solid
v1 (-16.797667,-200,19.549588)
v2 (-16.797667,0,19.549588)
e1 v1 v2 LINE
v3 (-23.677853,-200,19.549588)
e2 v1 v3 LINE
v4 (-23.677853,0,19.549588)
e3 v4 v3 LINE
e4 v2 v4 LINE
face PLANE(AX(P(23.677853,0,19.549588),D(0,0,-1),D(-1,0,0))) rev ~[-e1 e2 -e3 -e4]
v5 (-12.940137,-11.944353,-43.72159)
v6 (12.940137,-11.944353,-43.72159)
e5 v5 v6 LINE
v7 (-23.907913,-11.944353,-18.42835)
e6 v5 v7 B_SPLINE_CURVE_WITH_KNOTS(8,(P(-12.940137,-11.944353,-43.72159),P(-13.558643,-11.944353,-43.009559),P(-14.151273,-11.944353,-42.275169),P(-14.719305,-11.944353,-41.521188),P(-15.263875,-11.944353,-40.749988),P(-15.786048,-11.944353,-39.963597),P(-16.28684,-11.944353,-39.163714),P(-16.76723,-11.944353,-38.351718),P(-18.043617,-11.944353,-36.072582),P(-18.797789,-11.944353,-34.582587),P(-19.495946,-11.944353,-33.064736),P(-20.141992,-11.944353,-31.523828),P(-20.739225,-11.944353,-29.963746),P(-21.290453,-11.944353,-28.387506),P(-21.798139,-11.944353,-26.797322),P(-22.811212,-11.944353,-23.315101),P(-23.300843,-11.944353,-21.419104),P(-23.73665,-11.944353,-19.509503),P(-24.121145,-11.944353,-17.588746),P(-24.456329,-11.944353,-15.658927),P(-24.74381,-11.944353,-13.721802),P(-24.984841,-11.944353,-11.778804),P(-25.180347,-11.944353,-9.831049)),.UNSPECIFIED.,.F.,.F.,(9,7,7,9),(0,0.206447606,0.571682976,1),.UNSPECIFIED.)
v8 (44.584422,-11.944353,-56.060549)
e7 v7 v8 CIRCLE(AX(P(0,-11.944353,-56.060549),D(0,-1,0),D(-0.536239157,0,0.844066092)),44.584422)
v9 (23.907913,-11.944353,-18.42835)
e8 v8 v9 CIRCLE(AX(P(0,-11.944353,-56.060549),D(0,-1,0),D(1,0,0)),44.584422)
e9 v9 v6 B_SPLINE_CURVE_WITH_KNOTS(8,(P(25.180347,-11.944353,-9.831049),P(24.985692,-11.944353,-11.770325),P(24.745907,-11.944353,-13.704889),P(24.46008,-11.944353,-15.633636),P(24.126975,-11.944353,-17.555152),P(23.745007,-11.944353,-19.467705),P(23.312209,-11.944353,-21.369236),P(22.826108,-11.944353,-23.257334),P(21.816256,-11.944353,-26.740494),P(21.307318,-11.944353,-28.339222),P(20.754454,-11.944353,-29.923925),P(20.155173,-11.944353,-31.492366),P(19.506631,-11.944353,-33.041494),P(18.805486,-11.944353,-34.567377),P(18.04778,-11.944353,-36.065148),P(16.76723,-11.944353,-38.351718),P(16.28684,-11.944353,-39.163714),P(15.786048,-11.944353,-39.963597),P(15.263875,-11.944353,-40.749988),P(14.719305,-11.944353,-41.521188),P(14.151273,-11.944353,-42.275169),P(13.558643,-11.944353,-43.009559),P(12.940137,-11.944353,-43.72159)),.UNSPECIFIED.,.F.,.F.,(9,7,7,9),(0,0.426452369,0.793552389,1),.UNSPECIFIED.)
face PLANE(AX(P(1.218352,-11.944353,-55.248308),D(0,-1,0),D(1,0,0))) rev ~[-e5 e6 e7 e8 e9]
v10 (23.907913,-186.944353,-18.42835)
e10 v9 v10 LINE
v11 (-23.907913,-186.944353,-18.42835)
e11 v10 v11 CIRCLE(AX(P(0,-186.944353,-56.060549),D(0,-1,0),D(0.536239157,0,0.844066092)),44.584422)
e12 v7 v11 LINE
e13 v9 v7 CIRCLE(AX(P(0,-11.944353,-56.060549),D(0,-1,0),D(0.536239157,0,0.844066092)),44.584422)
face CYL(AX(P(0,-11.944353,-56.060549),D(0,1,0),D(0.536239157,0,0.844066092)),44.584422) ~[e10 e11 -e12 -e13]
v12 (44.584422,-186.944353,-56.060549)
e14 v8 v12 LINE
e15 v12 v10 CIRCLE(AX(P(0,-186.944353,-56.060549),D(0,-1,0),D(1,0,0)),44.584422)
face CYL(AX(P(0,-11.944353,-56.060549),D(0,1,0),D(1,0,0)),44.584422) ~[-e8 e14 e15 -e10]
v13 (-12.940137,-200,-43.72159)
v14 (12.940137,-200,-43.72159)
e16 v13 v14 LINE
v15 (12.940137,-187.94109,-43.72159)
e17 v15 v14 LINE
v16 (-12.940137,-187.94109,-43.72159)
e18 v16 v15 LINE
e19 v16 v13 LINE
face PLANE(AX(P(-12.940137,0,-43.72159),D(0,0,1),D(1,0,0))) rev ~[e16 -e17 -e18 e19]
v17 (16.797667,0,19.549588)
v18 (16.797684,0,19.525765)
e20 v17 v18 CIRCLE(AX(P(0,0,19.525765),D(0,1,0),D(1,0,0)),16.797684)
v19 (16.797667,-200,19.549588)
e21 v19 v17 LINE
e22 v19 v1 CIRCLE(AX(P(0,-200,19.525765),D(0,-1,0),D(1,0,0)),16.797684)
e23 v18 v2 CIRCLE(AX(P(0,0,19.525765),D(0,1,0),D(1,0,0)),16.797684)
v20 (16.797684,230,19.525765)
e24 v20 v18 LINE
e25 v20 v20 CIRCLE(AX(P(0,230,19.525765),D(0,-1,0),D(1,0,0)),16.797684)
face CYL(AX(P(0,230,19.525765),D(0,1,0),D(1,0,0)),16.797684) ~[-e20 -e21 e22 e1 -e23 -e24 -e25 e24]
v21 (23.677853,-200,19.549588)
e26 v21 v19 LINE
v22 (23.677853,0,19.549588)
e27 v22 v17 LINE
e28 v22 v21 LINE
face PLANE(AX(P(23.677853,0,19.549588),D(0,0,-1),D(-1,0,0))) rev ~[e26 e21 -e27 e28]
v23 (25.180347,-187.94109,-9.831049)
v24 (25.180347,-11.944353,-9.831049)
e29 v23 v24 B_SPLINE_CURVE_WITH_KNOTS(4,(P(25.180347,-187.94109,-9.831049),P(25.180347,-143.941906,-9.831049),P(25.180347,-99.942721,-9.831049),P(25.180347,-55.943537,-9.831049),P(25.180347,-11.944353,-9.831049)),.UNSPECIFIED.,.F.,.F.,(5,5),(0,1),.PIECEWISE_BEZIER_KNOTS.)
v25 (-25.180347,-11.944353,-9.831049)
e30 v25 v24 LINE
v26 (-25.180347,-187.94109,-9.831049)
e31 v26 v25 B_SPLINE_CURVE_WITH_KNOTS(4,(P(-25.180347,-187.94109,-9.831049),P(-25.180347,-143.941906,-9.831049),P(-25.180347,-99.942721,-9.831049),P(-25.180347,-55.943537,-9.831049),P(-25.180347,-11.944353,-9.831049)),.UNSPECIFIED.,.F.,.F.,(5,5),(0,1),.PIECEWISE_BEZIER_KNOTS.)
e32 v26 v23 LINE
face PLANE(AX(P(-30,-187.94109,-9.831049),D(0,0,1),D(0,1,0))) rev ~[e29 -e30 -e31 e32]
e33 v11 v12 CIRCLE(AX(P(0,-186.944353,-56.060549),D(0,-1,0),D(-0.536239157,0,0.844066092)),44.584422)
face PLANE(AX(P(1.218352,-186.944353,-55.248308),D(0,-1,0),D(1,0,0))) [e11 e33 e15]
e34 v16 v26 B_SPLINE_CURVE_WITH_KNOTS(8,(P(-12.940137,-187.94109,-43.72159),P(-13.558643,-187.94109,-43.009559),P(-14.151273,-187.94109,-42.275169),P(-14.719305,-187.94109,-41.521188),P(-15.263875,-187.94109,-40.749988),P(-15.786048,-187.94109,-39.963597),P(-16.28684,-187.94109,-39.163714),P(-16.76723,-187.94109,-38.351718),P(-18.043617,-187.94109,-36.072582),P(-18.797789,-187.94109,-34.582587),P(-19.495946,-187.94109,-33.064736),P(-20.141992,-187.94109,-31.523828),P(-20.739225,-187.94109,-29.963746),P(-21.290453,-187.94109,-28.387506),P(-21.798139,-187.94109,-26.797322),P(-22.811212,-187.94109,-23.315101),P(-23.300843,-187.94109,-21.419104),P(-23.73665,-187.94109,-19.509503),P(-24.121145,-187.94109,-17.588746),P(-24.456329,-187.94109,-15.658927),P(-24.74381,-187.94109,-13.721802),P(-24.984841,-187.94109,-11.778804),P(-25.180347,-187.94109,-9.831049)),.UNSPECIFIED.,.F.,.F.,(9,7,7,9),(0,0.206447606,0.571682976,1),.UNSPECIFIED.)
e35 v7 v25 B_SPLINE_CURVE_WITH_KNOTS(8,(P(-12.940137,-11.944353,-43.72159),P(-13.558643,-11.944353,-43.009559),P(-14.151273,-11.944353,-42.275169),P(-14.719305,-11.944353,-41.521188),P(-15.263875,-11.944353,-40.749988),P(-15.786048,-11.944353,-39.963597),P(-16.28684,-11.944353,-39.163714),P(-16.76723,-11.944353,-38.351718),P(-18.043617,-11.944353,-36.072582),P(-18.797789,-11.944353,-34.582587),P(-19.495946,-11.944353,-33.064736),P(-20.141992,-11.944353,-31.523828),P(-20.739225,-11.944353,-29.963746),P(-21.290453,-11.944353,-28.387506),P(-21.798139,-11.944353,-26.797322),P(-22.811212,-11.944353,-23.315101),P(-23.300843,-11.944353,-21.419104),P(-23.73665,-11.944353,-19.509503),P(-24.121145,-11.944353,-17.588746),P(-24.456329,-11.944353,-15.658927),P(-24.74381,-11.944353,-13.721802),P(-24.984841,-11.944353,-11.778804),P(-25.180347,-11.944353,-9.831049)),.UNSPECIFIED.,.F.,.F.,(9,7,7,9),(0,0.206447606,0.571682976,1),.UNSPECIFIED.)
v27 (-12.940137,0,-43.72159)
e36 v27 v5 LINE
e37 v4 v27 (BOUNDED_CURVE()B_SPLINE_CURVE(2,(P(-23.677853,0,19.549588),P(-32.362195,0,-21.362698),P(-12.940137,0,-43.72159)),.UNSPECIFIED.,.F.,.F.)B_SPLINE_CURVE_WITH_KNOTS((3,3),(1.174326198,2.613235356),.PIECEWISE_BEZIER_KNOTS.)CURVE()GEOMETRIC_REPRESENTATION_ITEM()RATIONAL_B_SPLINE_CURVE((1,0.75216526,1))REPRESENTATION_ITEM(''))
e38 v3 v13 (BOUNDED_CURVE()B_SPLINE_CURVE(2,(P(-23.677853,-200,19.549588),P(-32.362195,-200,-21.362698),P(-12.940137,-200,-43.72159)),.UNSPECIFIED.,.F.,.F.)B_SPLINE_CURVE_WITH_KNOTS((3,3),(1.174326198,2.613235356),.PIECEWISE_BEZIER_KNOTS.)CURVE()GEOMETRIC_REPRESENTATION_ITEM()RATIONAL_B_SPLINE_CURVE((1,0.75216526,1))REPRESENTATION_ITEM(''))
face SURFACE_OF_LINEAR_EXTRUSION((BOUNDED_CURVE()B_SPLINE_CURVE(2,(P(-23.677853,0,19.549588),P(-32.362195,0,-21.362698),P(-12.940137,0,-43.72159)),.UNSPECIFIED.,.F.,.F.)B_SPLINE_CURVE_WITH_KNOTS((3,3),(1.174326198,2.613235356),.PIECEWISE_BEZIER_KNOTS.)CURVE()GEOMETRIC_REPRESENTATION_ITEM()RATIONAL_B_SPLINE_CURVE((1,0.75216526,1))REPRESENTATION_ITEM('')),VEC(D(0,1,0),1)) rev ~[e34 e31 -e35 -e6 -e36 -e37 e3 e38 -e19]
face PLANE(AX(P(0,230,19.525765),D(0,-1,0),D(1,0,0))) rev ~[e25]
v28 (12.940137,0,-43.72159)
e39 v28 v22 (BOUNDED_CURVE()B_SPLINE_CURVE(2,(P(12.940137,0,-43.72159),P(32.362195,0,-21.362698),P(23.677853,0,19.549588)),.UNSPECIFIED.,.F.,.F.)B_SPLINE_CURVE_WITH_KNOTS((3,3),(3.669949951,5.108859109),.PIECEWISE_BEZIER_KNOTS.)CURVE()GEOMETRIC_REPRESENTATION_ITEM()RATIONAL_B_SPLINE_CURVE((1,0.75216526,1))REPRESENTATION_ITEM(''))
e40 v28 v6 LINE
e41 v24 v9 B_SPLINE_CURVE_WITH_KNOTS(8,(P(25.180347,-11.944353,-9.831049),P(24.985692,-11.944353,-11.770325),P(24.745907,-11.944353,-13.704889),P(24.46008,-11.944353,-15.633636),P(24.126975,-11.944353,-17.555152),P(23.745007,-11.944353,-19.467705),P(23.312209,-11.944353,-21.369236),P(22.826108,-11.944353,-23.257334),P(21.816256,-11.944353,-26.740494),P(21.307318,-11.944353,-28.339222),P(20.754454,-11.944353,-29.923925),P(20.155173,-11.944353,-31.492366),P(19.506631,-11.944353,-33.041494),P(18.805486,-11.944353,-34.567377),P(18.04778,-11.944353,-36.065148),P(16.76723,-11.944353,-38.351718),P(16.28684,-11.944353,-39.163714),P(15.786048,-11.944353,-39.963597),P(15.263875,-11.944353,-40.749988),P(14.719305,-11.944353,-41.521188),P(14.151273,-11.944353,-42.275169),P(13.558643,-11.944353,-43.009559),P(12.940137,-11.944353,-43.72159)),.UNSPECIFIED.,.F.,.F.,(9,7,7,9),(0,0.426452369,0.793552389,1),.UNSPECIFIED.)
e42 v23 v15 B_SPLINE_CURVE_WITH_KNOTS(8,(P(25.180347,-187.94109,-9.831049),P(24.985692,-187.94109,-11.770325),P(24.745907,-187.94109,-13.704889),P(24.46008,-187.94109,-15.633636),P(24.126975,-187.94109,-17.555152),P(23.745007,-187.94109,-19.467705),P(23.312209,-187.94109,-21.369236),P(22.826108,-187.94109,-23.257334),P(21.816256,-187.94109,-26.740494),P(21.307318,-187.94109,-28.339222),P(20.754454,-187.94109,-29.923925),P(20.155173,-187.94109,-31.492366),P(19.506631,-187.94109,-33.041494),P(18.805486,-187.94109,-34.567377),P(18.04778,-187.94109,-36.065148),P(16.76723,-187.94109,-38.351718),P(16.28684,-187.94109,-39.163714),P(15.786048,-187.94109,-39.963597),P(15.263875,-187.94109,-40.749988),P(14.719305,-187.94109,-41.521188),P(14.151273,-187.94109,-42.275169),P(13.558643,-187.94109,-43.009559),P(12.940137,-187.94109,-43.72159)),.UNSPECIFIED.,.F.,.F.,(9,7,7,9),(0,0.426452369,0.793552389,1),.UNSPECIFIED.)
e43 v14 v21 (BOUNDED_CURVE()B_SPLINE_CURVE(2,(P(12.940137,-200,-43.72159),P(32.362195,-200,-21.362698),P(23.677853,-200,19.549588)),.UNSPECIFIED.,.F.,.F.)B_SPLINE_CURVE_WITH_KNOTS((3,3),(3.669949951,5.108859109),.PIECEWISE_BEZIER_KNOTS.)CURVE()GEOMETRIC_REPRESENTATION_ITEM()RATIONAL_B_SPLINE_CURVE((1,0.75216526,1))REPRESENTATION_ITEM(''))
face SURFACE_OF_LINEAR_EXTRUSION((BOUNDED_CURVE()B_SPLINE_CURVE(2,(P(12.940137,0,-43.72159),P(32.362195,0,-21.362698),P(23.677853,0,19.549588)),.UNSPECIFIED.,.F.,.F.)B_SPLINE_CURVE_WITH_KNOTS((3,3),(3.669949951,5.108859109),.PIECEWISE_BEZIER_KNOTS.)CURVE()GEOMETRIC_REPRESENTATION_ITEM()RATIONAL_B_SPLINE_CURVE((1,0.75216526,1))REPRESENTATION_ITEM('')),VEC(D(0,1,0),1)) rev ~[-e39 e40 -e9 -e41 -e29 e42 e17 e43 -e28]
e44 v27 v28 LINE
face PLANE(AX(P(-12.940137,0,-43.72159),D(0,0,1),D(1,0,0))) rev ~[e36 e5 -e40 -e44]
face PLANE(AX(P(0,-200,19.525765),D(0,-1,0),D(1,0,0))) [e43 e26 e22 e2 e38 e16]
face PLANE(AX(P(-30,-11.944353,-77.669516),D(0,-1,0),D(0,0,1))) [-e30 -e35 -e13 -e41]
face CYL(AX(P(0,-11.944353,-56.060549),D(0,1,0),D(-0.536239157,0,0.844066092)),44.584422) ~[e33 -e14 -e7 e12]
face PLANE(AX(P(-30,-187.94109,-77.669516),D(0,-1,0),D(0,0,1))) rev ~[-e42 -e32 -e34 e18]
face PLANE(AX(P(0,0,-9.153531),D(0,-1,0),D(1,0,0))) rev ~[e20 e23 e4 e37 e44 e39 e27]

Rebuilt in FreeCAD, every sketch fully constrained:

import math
import FreeCAD as App
import Part
import Sketcher

doc = App.newDocument("Part")
params = doc.addObject("Spreadsheet::Sheet", "Params")
for row, (alias, value) in enumerate([
    ("pad1_length", "200 mm"),
    ("pad2_length", "430 mm"),
    ("pocket1_length", "100 mm"),
    ("pad3_length", "175 mm"),
], start=1):
    params.set(f"A{row}", alias)
    params.set(f"B{row}", "=" + value)
    params.setAlias(f"B{row}", alias)

body = doc.addObject("PartDesign::Body", "Body")

# Sketch on XZ plane
sketch1 = doc.addObject("Sketcher::SketchObject", "Sketch")
body.addObject(sketch1)
sketch1.AttachmentSupport = (doc.XZ_Plane, [""])
sketch1.MapMode = "FlatFace"
sketch1.addGeometry([
    Part.BSplineCurve([App.Vector(-23.677853, 19.549588, 0), App.Vector(-32.362195, -21.362698, 0), App.Vector(-12.940137, -43.72159, 0)], [3, 3], [1.174326198, 2.613235356], False, 2, [1, 0.75216526, 1], False),
    Part.LineSegment(App.Vector(-12.940137, -43.72159, 0), App.Vector(12.940137, -43.72159, 0)),
    Part.BSplineCurve([App.Vector(12.940137, -43.72159, 0), App.Vector(32.362195, -21.362698, 0), App.Vector(23.677853, 19.549588, 0)], [3, 3], [3.669949951, 5.108859109], False, 2, [1, 0.75216526, 1], False),
    Part.LineSegment(App.Vector(23.677853, 19.549588, 0), App.Vector(-23.677853, 19.549588, 0)),
], False)
sketch1.addConstraint([
    Sketcher.Constraint("Block", 0),
    Sketcher.Constraint("Block", 2),
    Sketcher.Constraint("Coincident", 0, 2, 1, 1),
    Sketcher.Constraint("Coincident", 1, 2, 2, 1),
    Sketcher.Constraint("Coincident", 2, 2, 3, 1),
    Sketcher.Constraint("Coincident", 3, 2, 0, 1),
])
pad1 = doc.addObject("PartDesign::Pad", "Pad")
body.addObject(pad1)
pad1.Profile = sketch1
pad1.setExpression("Length", "Params.pad1_length")

# Sketch on XZ plane
sketch2 = doc.addObject("Sketcher::SketchObject", "Sketch001")
body.addObject(sketch2)
sketch2.AttachmentSupport = (doc.XZ_Plane, [""])
sketch2.MapMode = "FlatFace"
sketch2.AttachmentOffset = App.Placement(App.Vector(0, 0, -230), App.Rotation())
sketch2.addGeometry(Part.Circle(App.Vector(0, 20, 0), App.Vector(0, 0, 1), 17), False)
sketch2.addConstraint([
    Sketcher.Constraint("PointOnObject", 0, 3, -2),
    Sketcher.Constraint("Diameter", 0, 33.595369),
    Sketcher.Constraint("DistanceY", -1, 1, 0, 3, 19.525765),
])
pad2 = doc.addObject("PartDesign::Pad", "Pad001")
body.addObject(pad2)
pad2.Profile = sketch2
pad2.setExpression("Length", "Params.pad2_length")

# Sketch on YZ plane
sketch3 = doc.addObject("Sketcher::SketchObject", "Sketch002")
body.addObject(sketch3)
sketch3.AttachmentSupport = (doc.YZ_Plane, [""])
sketch3.MapMode = "FlatFace"
sketch3.AttachmentOffset = App.Placement(App.Vector(0, 0, -30), App.Rotation())
sketch3.addGeometry([
    Part.LineSegment(App.Vector(-188, -10, 0), App.Vector(-188, -78, 0)),
    Part.LineSegment(App.Vector(-188, -78, 0), App.Vector(-12, -78, 0)),
    Part.LineSegment(App.Vector(-12, -78, 0), App.Vector(-12, -10, 0)),
    Part.LineSegment(App.Vector(-12, -10, 0), App.Vector(-188, -10, 0)),
], False)
sketch3.addConstraint([
    Sketcher.Constraint("Coincident", 0, 2, 1, 1),
    Sketcher.Constraint("Coincident", 1, 2, 2, 1),
    Sketcher.Constraint("Coincident", 2, 2, 3, 1),
    Sketcher.Constraint("Coincident", 3, 2, 0, 1),
    Sketcher.Constraint("Vertical", 0),
    Sketcher.Constraint("Horizontal", 1),
    Sketcher.Constraint("Vertical", 2),
    Sketcher.Constraint("Horizontal", 3),
    Sketcher.Constraint("DistanceX", 1, 1, 1, 2, 175.996738),
    Sketcher.Constraint("DistanceY", 0, 2, 0, 1, 67.838468),
    Sketcher.Constraint("DistanceX", 0, 2, -1, 1, 187.94109),
    Sketcher.Constraint("DistanceY", 2, 2, -1, 1, 9.831049),
])
pocket1 = doc.addObject("PartDesign::Pocket", "Pocket")
body.addObject(pocket1)
pocket1.Profile = sketch3
pocket1.setExpression("Length", "Params.pocket1_length")
pocket1.Reversed = True

# Sketch on XZ plane
sketch4 = doc.addObject("Sketcher::SketchObject", "Sketch003")
body.addObject(sketch4)
sketch4.AttachmentSupport = (doc.XZ_Plane, [""])
sketch4.MapMode = "FlatFace"
sketch4.AttachmentOffset = App.Placement(App.Vector(0, 0, 11.944353), App.Rotation())
sketch4.addGeometry([
    Part.ArcOfCircle(Part.Circle(App.Vector(0, -56, 0), App.Vector(0, 0, 1), 45), math.radians(122), math.radians(360)),
    Part.ArcOfCircle(Part.Circle(App.Vector(0, -56, 0), App.Vector(0, 0, 1), 45), math.radians(0), math.radians(58)),
    Part.ArcOfCircle(Part.Circle(App.Vector(0, -56, 0), App.Vector(0, 0, 1), 45), math.radians(58), math.radians(122)),
], False)
sketch4.addConstraint([
    Sketcher.Constraint("Tangent", 0, 2, 1, 1),
    Sketcher.Constraint("Tangent", 1, 2, 2, 1),
    Sketcher.Constraint("Tangent", 2, 2, 0, 1),
    Sketcher.Constraint("Symmetric", 1, 2, 2, 2, -2),
    Sketcher.Constraint("Horizontal", 2, 3, 0, 2),
    Sketcher.Constraint("Radius", 0, 44.584422),
    Sketcher.Constraint("DistanceY", 0, 2, 1, 2, 37.632198),
    Sketcher.Constraint("DistanceY", 0, 3, -1, 1, 56.060549),
])
pad3 = doc.addObject("PartDesign::Pad", "Pad002")
body.addObject(pad3)
pad3.Profile = sketch4
pad3.setExpression("Length", "Params.pad3_length")

doc.recompute()
